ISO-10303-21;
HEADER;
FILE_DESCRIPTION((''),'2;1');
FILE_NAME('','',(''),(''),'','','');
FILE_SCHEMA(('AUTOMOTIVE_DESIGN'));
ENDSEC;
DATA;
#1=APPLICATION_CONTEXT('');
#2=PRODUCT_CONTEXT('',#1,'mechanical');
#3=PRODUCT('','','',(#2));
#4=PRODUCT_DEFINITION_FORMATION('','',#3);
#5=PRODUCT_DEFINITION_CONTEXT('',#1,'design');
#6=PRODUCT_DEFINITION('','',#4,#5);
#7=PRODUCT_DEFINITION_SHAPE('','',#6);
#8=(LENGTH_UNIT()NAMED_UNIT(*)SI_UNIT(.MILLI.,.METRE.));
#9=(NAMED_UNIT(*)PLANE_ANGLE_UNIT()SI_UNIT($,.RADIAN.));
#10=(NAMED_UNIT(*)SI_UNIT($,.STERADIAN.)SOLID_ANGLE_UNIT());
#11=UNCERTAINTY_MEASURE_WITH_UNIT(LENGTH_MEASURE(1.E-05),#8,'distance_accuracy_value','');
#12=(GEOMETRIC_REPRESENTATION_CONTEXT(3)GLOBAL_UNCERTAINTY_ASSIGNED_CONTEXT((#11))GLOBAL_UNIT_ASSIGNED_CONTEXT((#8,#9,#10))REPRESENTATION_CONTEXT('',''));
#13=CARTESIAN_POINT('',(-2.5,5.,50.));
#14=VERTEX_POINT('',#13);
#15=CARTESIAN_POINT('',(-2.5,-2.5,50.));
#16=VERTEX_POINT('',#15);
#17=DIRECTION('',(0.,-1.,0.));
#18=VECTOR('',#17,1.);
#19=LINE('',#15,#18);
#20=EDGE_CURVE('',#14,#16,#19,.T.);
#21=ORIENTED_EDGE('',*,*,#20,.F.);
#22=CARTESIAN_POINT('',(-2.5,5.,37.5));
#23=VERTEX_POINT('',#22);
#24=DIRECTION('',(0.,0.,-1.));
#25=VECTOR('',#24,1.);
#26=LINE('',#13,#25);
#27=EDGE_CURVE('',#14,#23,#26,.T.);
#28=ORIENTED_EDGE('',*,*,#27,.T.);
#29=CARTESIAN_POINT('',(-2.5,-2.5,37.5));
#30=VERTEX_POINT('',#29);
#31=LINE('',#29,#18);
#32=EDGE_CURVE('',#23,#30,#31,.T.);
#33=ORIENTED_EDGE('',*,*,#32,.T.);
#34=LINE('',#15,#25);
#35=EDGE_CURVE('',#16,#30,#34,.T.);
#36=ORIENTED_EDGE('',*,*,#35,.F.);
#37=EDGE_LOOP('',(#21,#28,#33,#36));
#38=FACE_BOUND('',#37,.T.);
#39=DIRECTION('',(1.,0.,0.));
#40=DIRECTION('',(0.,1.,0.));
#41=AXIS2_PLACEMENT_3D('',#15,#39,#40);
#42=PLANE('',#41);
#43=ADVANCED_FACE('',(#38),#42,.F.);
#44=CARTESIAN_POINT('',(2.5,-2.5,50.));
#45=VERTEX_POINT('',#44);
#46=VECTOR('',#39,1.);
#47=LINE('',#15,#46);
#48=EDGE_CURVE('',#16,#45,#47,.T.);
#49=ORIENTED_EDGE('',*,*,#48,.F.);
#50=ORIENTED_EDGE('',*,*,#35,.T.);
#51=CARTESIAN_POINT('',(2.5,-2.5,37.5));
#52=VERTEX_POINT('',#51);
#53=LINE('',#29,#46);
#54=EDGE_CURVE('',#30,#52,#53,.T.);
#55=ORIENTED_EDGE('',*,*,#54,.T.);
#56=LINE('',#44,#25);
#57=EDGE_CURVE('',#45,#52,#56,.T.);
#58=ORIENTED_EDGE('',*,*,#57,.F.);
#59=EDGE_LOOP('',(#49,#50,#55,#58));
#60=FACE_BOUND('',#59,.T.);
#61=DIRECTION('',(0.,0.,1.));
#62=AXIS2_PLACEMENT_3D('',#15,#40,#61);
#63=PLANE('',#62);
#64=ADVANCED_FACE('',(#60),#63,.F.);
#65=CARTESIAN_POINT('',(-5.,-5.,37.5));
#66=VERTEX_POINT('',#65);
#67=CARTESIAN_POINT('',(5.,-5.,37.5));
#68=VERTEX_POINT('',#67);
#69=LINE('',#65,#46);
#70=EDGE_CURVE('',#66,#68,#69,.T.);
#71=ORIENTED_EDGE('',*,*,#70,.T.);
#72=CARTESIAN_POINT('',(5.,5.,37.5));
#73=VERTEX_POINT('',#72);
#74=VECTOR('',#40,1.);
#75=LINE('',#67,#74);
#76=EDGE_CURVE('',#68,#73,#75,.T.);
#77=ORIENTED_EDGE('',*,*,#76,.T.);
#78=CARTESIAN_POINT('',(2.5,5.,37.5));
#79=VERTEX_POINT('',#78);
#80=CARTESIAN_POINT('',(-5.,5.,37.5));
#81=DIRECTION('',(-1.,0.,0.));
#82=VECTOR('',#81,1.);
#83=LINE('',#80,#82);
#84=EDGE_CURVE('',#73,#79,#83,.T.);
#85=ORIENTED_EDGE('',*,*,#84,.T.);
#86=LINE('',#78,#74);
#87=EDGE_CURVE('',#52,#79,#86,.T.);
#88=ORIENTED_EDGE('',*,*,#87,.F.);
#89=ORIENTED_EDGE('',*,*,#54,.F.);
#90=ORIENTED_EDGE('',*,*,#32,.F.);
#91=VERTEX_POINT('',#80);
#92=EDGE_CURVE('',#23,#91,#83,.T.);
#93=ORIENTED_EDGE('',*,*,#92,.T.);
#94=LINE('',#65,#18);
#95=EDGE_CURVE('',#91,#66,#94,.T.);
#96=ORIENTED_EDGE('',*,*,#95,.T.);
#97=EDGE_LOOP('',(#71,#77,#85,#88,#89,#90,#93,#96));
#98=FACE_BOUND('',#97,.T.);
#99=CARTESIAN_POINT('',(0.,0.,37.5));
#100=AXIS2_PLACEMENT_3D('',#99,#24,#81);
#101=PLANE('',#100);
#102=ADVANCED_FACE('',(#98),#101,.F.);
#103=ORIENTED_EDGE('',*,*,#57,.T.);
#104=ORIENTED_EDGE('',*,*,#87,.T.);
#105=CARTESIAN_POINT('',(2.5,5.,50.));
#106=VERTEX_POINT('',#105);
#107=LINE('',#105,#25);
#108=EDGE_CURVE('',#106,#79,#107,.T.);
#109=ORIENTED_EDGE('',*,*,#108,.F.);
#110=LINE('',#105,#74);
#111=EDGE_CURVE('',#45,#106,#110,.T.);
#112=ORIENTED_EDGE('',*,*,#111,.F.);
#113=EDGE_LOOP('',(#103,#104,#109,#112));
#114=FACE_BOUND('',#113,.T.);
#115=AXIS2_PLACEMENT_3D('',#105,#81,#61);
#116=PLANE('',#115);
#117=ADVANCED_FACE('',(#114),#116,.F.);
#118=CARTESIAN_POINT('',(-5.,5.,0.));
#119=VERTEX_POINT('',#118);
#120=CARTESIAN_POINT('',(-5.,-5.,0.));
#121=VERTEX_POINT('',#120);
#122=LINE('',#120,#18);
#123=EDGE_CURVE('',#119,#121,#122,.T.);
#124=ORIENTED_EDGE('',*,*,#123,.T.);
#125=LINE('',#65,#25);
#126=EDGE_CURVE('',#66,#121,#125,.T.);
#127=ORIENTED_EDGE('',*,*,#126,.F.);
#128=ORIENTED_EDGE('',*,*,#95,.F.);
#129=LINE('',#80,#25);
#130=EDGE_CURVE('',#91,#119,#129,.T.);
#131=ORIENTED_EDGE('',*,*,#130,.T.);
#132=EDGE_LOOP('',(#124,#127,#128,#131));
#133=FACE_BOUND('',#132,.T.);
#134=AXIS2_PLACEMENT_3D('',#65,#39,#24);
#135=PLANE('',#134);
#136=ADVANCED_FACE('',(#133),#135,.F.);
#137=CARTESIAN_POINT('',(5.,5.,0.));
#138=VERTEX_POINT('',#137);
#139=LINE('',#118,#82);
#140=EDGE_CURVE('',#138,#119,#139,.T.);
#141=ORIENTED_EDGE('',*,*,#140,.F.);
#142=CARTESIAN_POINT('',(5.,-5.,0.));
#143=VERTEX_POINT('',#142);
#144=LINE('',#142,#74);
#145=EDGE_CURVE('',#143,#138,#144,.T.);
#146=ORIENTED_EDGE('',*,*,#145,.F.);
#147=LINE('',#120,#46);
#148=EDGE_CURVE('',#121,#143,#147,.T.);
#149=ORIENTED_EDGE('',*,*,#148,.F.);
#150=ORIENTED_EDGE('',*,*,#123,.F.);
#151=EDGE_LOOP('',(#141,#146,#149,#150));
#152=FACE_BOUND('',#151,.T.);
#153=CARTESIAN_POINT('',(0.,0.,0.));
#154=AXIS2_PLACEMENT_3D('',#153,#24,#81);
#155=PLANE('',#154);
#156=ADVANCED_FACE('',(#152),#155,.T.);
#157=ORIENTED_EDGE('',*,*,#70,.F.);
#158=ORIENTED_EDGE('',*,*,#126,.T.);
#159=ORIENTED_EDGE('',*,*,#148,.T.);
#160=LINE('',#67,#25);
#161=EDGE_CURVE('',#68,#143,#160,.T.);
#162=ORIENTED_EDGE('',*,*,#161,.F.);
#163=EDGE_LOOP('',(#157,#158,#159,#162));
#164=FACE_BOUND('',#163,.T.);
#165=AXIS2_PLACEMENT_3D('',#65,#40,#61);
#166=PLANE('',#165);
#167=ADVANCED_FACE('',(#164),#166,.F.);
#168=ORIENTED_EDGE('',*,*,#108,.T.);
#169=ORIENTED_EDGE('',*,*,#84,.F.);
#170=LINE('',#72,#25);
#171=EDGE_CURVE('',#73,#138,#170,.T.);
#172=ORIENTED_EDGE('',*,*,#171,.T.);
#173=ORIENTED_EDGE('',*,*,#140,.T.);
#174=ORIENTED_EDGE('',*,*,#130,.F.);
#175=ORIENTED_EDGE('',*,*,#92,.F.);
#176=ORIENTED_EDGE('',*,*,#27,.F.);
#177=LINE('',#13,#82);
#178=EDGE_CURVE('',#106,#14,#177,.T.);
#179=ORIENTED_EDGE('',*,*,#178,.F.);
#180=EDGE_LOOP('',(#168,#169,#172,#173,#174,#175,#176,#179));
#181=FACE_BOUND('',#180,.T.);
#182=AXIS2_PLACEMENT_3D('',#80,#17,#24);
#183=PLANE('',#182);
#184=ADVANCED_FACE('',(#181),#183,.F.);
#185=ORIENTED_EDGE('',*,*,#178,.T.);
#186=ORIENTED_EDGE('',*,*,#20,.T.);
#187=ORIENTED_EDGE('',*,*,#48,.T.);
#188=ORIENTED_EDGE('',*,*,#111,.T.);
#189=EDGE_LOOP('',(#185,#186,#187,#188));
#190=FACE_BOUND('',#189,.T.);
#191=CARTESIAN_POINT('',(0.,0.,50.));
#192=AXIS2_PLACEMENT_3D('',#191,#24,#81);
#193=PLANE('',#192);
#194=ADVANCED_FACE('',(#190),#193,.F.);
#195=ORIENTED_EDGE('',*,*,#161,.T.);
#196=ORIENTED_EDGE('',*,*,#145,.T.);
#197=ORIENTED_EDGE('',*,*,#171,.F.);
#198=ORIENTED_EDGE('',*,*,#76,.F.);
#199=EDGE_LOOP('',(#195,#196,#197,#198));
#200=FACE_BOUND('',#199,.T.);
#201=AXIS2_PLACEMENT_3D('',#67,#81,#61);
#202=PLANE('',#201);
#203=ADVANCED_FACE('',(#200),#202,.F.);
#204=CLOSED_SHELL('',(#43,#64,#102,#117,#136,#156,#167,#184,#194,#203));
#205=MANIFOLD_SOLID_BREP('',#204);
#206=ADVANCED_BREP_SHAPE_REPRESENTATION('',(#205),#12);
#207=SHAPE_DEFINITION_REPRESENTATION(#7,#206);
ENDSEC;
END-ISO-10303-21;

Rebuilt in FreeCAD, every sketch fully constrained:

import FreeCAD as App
import Part
import Sketcher

V = App.Vector


def add_polygon(sketch, points):
    """Adds a closed chain of lines whose ends are joined by coincident constraints."""
    first, n = sketch.GeometryCount, len(points)
    for a, b in zip(points, points[1:] + points[:1]):
        sketch.addGeometry(Part.LineSegment(App.Vector(*a, 0), App.Vector(*b, 0)), False)
    for i in range(n):
        sketch.addConstraint(Sketcher.Constraint("Coincident", first + i, 2, first + (i + 1) % n, 1))

doc = App.newDocument("Part")
body = doc.addObject("PartDesign::Body", "Body")

# Sketch on XY plane
sketch1 = body.newObject("Sketcher::SketchObject", "Sketch")
sketch1.AttachmentSupport = (doc.getObject("XY_Plane"), [""])
sketch1.MapMode = "FlatFace"
add_polygon(sketch1, [(-5, 5), (-5, -5), (5, -5), (5, 5)])  # lines 0-3
sketch1.addConstraint(Sketcher.Constraint("Vertical", 0))
sketch1.addConstraint(Sketcher.Constraint("Horizontal", 1))
sketch1.addConstraint(Sketcher.Constraint("Vertical", 2))
sketch1.addConstraint(Sketcher.Constraint("Horizontal", 3))
sketch1.addConstraint(Sketcher.Constraint("Symmetric", 0, 2, 2, 2, -1, 1))
sketch1.addConstraint(Sketcher.Constraint("Equal", 3, 0))
sketch1.addConstraint(Sketcher.Constraint("DistanceX", 1, 1, 1, 2, 10.0))
pad1 = body.newObject("PartDesign::Pad", "Pad")
pad1.Profile = sketch1
pad1.Length = 37.5

# Sketch on XY plane
sketch2 = body.newObject("Sketcher::SketchObject", "Sketch001")
sketch2.AttachmentSupport = (doc.getObject("XY_Plane"), [""])
sketch2.MapMode = "FlatFace"
sketch2.AttachmentOffset = App.Placement(V(0, 0, 37.5), App.Rotation())
add_polygon(sketch2, [(-2, 5), (-2, -2), (2, -2), (2, 5)])  # lines 0-3
sketch2.addConstraint(Sketcher.Constraint("Vertical", 0))
sketch2.addConstraint(Sketcher.Constraint("Horizontal", 1))
sketch2.addConstraint(Sketcher.Constraint("Vertical", 2))
sketch2.addConstraint(Sketcher.Constraint("Horizontal", 3))
sketch2.addConstraint(Sketcher.Constraint("DistanceX", 1, 1, 1, 2, 5.0))
sketch2.addConstraint(Sketcher.Constraint("DistanceY", 0, 2, 0, 1, 7.5))
sketch2.addConstraint(Sketcher.Constraint("DistanceY", -1, 1, 2, 2, 5.0))
sketch2.addConstraint(Sketcher.Constraint("DistanceX", 0, 2, -1, 1, 2.5))
pad2 = body.newObject("PartDesign::Pad", "Pad001")
pad2.Profile = sketch2
pad2.Length = 12.5

doc.recompute()
